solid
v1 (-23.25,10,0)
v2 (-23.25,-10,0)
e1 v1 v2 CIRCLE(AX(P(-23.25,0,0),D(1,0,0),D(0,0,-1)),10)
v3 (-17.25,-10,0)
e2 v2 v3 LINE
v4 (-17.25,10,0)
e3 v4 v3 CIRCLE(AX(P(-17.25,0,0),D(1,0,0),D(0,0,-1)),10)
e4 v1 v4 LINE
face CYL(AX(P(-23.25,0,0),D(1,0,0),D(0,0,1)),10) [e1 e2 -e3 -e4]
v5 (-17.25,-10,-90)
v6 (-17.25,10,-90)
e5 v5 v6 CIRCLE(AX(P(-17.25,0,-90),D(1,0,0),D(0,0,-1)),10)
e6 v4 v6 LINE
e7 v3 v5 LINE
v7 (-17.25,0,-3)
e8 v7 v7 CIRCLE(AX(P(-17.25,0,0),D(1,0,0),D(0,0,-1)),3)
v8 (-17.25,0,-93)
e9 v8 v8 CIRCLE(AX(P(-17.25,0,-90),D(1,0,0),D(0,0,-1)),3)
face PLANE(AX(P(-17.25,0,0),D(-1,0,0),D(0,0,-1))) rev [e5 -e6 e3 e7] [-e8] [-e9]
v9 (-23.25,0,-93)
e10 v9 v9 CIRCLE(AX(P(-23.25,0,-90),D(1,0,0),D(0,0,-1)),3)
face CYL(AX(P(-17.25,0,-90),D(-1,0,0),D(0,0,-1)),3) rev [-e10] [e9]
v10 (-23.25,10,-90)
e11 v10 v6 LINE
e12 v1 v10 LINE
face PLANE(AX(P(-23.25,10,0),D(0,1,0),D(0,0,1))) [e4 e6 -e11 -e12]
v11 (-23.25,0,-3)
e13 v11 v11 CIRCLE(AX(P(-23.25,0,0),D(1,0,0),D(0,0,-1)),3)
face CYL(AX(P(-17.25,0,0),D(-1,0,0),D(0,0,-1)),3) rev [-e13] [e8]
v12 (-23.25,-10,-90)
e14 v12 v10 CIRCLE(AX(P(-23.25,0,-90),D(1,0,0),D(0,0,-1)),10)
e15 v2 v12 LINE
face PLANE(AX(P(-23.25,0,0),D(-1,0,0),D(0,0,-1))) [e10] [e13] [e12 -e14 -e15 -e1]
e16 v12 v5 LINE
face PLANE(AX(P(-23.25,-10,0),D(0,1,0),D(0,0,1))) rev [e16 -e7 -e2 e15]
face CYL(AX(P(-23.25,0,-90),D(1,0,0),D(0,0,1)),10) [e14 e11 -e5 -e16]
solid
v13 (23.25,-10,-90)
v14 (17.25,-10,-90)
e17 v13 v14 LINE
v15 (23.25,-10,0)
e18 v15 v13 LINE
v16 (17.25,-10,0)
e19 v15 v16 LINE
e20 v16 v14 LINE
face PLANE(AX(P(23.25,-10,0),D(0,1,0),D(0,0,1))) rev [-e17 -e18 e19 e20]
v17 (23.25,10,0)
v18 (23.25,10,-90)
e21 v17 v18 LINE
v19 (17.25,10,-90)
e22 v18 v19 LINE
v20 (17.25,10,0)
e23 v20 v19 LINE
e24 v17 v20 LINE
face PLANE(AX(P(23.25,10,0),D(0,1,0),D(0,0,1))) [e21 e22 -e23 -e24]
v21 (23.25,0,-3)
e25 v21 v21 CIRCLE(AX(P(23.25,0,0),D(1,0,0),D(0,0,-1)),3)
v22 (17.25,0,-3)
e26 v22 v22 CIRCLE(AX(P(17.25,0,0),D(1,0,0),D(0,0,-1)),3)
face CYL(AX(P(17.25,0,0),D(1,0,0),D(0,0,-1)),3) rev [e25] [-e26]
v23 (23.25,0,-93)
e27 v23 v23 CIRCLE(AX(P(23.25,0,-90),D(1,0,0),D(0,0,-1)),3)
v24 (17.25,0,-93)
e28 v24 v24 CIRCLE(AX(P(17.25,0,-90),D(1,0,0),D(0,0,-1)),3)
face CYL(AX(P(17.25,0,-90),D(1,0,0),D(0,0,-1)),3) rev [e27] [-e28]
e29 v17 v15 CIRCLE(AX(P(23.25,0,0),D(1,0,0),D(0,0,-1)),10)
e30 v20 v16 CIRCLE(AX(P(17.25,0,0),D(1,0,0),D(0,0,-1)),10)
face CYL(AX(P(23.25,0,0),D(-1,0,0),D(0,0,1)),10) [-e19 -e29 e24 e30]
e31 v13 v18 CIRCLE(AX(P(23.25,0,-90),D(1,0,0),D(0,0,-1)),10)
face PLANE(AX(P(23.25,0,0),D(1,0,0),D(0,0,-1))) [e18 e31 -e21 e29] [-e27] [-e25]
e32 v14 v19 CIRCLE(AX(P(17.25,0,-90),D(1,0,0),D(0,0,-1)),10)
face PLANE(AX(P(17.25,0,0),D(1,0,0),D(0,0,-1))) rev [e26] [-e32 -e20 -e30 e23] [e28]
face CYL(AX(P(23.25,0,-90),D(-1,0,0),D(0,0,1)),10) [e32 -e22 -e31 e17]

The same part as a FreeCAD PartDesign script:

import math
import FreeCAD as App
import Part
import Sketcher
from FreeCAD import Vector
Q = App.Units.Quantity

doc = App.newDocument("Part")
body = doc.addObject("PartDesign::Body", "Body")

# Sketch on YZ plane
sketch1 = body.newObject("Sketcher::SketchObject", "Sketch")
sketch1.AttachmentSupport = (doc.getObject("YZ_Plane"), [""])
sketch1.MapMode = "FlatFace"
sketch1.AttachmentOffset = App.Placement(Vector(0, 0, 17.25), App.Rotation())
sketch1.addGeometry([
    Part.LineSegment(Vector(10, -90, 0), Vector(10, 0, 0)),
    Part.ArcOfCircle(Part.Circle(Vector(0, 0, 0), Vector(0, 0, 1), 10), math.radians(0), math.radians(180)),
    Part.LineSegment(Vector(-10, 0, 0), Vector(-10, -90, 0)),
    Part.ArcOfCircle(Part.Circle(Vector(0, -90, 0), Vector(0, 0, 1), 10), math.radians(180), math.radians(360)),
], False)
sketch1.addConstraint([
    Sketcher.Constraint("Tangent", 0, 2, 1, 1),
    Sketcher.Constraint("Tangent", 1, 2, 2, 1),
    Sketcher.Constraint("Tangent", 2, 2, 3, 1),
    Sketcher.Constraint("Tangent", 3, 2, 0, 1),
    Sketcher.Constraint("Vertical", 0),
    Sketcher.Constraint("Vertical", 2),
    Sketcher.Constraint("Coincident", 1, 3, -1, 1),
    Sketcher.Constraint("Radius", 1, Q("10 mm")),
    Sketcher.Constraint("DistanceY", 0, 1, 0, 2, Q("90 mm")),
])
pad1 = body.newObject("PartDesign::Pad", "Pad")
pad1.Profile = sketch1
pad1.Length = 6

# Sketch on YZ plane
sketch2 = body.newObject("Sketcher::SketchObject", "Sketch001")
sketch2.AttachmentSupport = (doc.getObject("YZ_Plane"), [""])
sketch2.MapMode = "FlatFace"
sketch2.AttachmentOffset = App.Placement(Vector(0, 0, 23.25), App.Rotation())
sketch2.addGeometry([
    Part.Circle(Vector(0, 0, 0), Vector(0, 0, 1), 3),
    Part.Circle(Vector(0, -90, 0), Vector(0, 0, 1), 3),
], False)
sketch2.addConstraint([
    Sketcher.Constraint("Coincident", 0, 3, -1, 1),
    Sketcher.Constraint("Equal", 0, 1),
    Sketcher.Constraint("PointOnObject", 1, 3, -2),
    Sketcher.Constraint("Diameter", 0, Q("6 mm")),
    Sketcher.Constraint("DistanceY", 1, 3, -1, 1, Q("90 mm")),
])
pocket1 = body.newObject("PartDesign::Pocket", "Pocket")
pocket1.Profile = sketch2
pocket1.Type = "ThroughAll"
pocket1.Midplane = True
body2 = doc.addObject("PartDesign::Body", "Body001")
doc.recompute()

mirroring = doc.addObject("Part::Mirroring", "Mirroring")
mirroring.Source = body
mirroring.Base = Vector(0, 0, 0)
mirroring.Normal = Vector(1, 0, 0)
body2.BaseFeature = mirroring
doc.recompute()
mirroring.Visibility = False

doc.recompute()
